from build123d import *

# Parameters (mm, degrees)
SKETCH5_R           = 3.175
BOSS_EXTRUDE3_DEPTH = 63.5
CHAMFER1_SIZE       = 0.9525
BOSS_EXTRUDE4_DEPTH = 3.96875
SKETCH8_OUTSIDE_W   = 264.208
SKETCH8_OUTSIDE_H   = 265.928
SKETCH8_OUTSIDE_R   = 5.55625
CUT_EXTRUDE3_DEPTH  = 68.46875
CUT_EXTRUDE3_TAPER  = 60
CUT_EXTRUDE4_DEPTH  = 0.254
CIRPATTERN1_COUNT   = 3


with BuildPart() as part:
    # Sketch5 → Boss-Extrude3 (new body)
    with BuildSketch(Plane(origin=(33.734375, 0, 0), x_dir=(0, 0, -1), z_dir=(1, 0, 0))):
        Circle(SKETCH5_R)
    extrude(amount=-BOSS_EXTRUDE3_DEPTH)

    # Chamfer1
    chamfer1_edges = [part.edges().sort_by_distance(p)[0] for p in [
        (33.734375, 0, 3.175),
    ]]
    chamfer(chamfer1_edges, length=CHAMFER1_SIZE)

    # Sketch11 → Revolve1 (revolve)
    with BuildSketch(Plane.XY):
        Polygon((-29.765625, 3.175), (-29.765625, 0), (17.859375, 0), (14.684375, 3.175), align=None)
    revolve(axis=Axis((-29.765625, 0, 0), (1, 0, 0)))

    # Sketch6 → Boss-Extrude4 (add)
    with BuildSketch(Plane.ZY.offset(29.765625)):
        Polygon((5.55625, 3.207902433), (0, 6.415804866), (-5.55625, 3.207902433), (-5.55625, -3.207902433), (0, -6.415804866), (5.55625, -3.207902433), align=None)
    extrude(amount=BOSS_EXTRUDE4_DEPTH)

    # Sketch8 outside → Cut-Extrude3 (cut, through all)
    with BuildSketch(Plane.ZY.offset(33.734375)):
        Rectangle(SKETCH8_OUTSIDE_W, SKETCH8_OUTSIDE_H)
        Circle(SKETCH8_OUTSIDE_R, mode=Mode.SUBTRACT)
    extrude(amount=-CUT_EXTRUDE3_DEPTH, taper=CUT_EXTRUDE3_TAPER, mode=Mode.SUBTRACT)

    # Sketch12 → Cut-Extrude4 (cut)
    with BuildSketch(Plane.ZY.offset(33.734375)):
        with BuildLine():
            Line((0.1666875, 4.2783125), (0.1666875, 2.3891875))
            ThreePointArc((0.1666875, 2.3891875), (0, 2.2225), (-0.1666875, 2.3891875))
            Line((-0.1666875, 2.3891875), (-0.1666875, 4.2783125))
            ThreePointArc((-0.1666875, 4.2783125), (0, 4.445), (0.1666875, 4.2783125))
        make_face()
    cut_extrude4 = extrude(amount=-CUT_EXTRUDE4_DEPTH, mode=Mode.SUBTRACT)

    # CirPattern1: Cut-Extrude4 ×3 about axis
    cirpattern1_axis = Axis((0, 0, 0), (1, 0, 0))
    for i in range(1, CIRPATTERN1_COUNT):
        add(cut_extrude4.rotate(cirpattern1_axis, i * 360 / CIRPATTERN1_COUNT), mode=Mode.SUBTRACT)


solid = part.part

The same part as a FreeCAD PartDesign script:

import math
import FreeCAD as App
import Part
import Sketcher

V = App.Vector
Q = App.Units.Quantity


def edges_at(feature, points):
    """Names of the edges that pass closest to the given points."""
    edges = feature.Shape.Edges
    near = lambda p: min(range(len(edges)), key=lambda i: edges[i].distToShape(Part.Vertex(*p))[0])
    return sorted({f"Edge{near(p) + 1}" for p in points})


def add_polygon(sketch, points):
    """Adds a closed chain of lines whose ends are joined by coincident constraints."""
    first, n = sketch.GeometryCount, len(points)
    for a, b in zip(points, points[1:] + points[:1]):
        sketch.addGeometry(Part.LineSegment(App.Vector(*a, 0), App.Vector(*b, 0)), False)
    for i in range(n):
        sketch.addConstraint(Sketcher.Constraint("Coincident", first + i, 2, first + (i + 1) % n, 1))

doc = App.newDocument("Part")
body = doc.addObject("PartDesign::Body", "Body")

# Sketch on YZ plane
sketch1 = body.newObject("Sketcher::SketchObject", "Sketch")
sketch1.AttachmentSupport = (doc.getObject("YZ_Plane"), [""])
sketch1.MapMode = "FlatFace"
sketch1.AttachmentOffset = App.Placement(V(0, 0, 1.328125 * 25.4), App.Rotation())
sketch1.addGeometry(Part.Circle(V(0, 0, 0), V(0, 0, 1), 3.175), False)
sketch1.addConstraint(Sketcher.Constraint("Coincident", 0, 3, -1, 1))
sketch1.addConstraint(Sketcher.Constraint("Diameter", 0, Q("0.25 in")))
pad1 = body.newObject("PartDesign::Pad", "Pad")
pad1.Profile = sketch1
pad1.Length = Q("2.5 in")
pad1.Reversed = True
doc.recompute()

chamfer = body.newObject("PartDesign::Chamfer", "Chamfer")
chamfer.Base = (pad1, edges_at(pad1, [(33.734, 0, 3.175)]))
chamfer.Size = Q("0.0375 in")

# Sketch on XY plane
sketch2 = body.newObject("Sketcher::SketchObject", "Sketch001")
sketch2.AttachmentSupport = (doc.getObject("XY_Plane"), [""])
sketch2.MapMode = "FlatFace"
add_polygon(sketch2, [(-29.765625, 3.175), (-29.765625, 0), (17.859375, 0), (14.684375, 3.175)])  # lines 0-3
sketch2.addConstraint(Sketcher.Constraint("Vertical", 0))
sketch2.addConstraint(Sketcher.Constraint("Horizontal", 1))
sketch2.addConstraint(Sketcher.Constraint("Horizontal", 3))
sketch2.addConstraint(Sketcher.Constraint("PointOnObject", 0, 2, -1))
sketch2.addConstraint(Sketcher.Constraint("Angle", 2, Q("135 deg")))
sketch2.addConstraint(Sketcher.Constraint("DistanceX", 3, 2, 3, 1, Q("1.75 in")))
sketch2.addConstraint(Sketcher.Constraint("DistanceX", 1, 1, 1, 2, Q("1.875 in")))
sketch2.addConstraint(Sketcher.Constraint("DistanceX", 0, 2, -1, 1, Q("1.171875 in")))
revolution = body.newObject("PartDesign::Revolution", "Revolution")
revolution.Profile = sketch2
revolution.ReferenceAxis = (sketch2, ["H_Axis"])
revolution.Angle = 360

# Sketch on YZ plane
sketch3 = body.newObject("Sketcher::SketchObject", "Sketch002")
sketch3.AttachmentSupport = (doc.getObject("YZ_Plane"), [""])
sketch3.MapMode = "FlatFace"
sketch3.AttachmentOffset = App.Placement(V(0, 0, -1.171875 * 25.4), App.Rotation())
add_polygon(sketch3, [(3.207902, 5.55625), (6.415805, 0), (3.207902, -5.55625), (-3.207902, -5.55625), (-6.415805, 0), (-3.207902, 5.55625)])  # lines 0-5
sketch3.addConstraint(Sketcher.Constraint("Horizontal", 2))
sketch3.addConstraint(Sketcher.Constraint("Horizontal", 5))
sketch3.addConstraint(Sketcher.Constraint("Symmetric", 0, 2, 3, 2, -1, 1))
sketch3.addConstraint(Sketcher.Constraint("Symmetric", 1, 2, 4, 2, -1, 1))
sketch3.addConstraint(Sketcher.Constraint("PointOnObject", 0, 2, -1))
sketch3.addConstraint(Sketcher.Constraint("Parallel", 0, 3))
sketch3.addConstraint(Sketcher.Constraint("Vertical", 2, 2, 4, 2))
sketch3.addConstraint(Sketcher.Constraint("Angle", 0, Q("-60 deg")))
sketch3.addConstraint(Sketcher.Constraint("DistanceY", 1, 2, -1, 1, Q("0.21875 in")))
sketch3.addConstraint(Sketcher.Constraint("DistanceX", 2, 2, 2, 1, Q("6.415805 mm")))
pad2 = body.newObject("PartDesign::Pad", "Pad001")
pad2.Profile = sketch3
pad2.Length = Q("0.15625 in")
pad2.Reversed = True

# Sketch on YZ plane
sketch4 = body.newObject("Sketcher::SketchObject", "Sketch003")
sketch4.AttachmentSupport = (doc.getObject("YZ_Plane"), [""])
sketch4.MapMode = "FlatFace"
sketch4.AttachmentOffset = App.Placement(V(0, 0, -1.328125 * 25.4), App.Rotation())
add_polygon(sketch4, [(132.964, -132.104), (-132.964, -132.104), (-132.964, 132.104), (132.964, 132.104)])  # lines 0-3
sketch4.addGeometry(Part.Circle(V(0, 0, 0), V(0, 0, 1), 5.55625), False)  # 4
sketch4.addConstraint(Sketcher.Constraint("Horizontal", 0))
sketch4.addConstraint(Sketcher.Constraint("Vertical", 1))
sketch4.addConstraint(Sketcher.Constraint("Horizontal", 2))
sketch4.addConstraint(Sketcher.Constraint("Vertical", 3))
sketch4.addConstraint(Sketcher.Constraint("Coincident", 4, 3, -1, 1))
sketch4.addConstraint(Sketcher.Constraint("Symmetric", 0, 2, 2, 2, -1, 1))
sketch4.addConstraint(Sketcher.Constraint("Diameter", 4, Q("0.4375 in")))
sketch4.addConstraint(Sketcher.Constraint("DistanceX", 0, 2, 0, 1, Q("265.928 mm")))
sketch4.addConstraint(Sketcher.Constraint("DistanceY", 1, 1, 1, 2, Q("264.208 mm")))
pocket1 = body.newObject("PartDesign::Pocket", "Pocket")
pocket1.Profile = sketch4
pocket1.Length = 68.46875
pocket1.Reversed = True
pocket1.TaperAngle = 60

# Sketch on YZ plane
sketch5 = body.newObject("Sketcher::SketchObject", "Sketch004")
sketch5.AttachmentSupport = (doc.getObject("YZ_Plane"), [""])
sketch5.MapMode = "FlatFace"
sketch5.AttachmentOffset = App.Placement(V(0, 0, -1.328125 * 25.4), App.Rotation())
sketch5.addGeometry(Part.LineSegment(V(2.389187, 0.166687, 0), V(4.278313, 0.166687, 0)), False)
sketch5.addGeometry(Part.ArcOfCircle(Part.Circle(V(4.278313, 0, 0), V(0, 0, 1), 0.166687), math.radians(-90), math.radians(90)), False)
sketch5.addGeometry(Part.LineSegment(V(4.278313, -0.166687, 0), V(2.389187, -0.166687, 0)), False)
sketch5.addGeometry(Part.ArcOfCircle(Part.Circle(V(2.389187, 0, 0), V(0, 0, 1), 0.166687), math.radians(90), math.radians(270)), False)
sketch5.addConstraint(Sketcher.Constraint("Tangent", 0, 2, 1, 2))
sketch5.addConstraint(Sketcher.Constraint("Tangent", 1, 1, 2, 1))
sketch5.addConstraint(Sketcher.Constraint("Tangent", 2, 2, 3, 2))
sketch5.addConstraint(Sketcher.Constraint("Tangent", 3, 1, 0, 1))
sketch5.addConstraint(Sketcher.Constraint("Horizontal", 0))
sketch5.addConstraint(Sketcher.Constraint("Horizontal", 2))
sketch5.addConstraint(Sketcher.Constraint("PointOnObject", 1, 3, -1))
sketch5.addConstraint(Sketcher.Constraint("Radius", 1, Q("0.166687 mm")))
sketch5.addConstraint(Sketcher.Constraint("DistanceX", 0, 1, 0, 2, Q("1.889125 mm")))
sketch5.addConstraint(Sketcher.Constraint("DistanceX", -1, 1, 1, 3, Q("4.278313 mm")))
pocket2 = body.newObject("PartDesign::Pocket", "Pocket001")
pocket2.Profile = sketch5
pocket2.Length = Q("0.01 in")
pocket2.Reversed = True
doc.recompute()

polarpattern = body.newObject("PartDesign::PolarPattern", "PolarPattern")
polarpattern.Originals = [pocket2]
polarpattern.Axis = (doc.getObject("X_Axis"), [""])
polarpattern.Angle = 360
polarpattern.Occurrences = 3
body.Tip = polarpattern

doc.recompute()
